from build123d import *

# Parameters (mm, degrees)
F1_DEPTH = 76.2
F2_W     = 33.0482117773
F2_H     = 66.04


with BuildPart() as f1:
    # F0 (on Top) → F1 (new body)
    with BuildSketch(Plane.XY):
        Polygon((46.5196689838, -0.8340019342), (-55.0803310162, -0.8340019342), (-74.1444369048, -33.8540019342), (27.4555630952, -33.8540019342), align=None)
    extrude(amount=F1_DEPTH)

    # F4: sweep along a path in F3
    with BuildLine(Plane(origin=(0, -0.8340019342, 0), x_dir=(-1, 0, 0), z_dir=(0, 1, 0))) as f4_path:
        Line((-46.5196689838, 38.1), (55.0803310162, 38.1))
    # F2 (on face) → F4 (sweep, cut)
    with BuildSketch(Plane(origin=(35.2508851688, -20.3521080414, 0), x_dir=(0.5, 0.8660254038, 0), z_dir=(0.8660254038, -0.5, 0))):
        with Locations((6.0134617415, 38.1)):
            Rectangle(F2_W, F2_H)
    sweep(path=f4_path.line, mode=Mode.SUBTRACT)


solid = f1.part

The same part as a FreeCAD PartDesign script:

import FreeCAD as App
import Part
import Sketcher
from FreeCAD import Vector
Q = App.Units.Quantity


def add_polygon(sketch, points):
    """Adds a closed chain of lines whose ends are joined by coincident constraints."""
    first, n = sketch.GeometryCount, len(points)
    for a, b in zip(points, points[1:] + points[:1]):
        sketch.addGeometry(Part.LineSegment(App.Vector(*a, 0), App.Vector(*b, 0)), False)
    for i in range(n):
        sketch.addConstraint(Sketcher.Constraint("Coincident", first + i, 2, first + (i + 1) % n, 1))

doc = App.newDocument("Part")
body = doc.addObject("PartDesign::Body", "Body")

# Sketch on XY plane
sketch1 = body.newObject("Sketcher::SketchObject", "Sketch")
sketch1.AttachmentSupport = (doc.getObject("XY_Plane"), [""])
sketch1.MapMode = "FlatFace"
add_polygon(sketch1, [(47, -1), (-55, -1), (-74, -34), (27, -34)])  # lines 0-3
sketch1.addConstraint(Sketcher.Constraint("Horizontal", 0))
sketch1.addConstraint(Sketcher.Constraint("Horizontal", 2))
sketch1.addConstraint(Sketcher.Constraint("Parallel", 1, 3))
sketch1.addConstraint(Sketcher.Constraint("DistanceX", 0, 2, 0, 1, Q("4 in")))
sketch1.addConstraint(Sketcher.Constraint("Angle", 1, Q("-120 deg")))
sketch1.addConstraint(Sketcher.Constraint("DistanceY", 1, 2, 0, 2, Q("1.3 in")))
sketch1.addConstraint(Sketcher.Constraint("DistanceY", 0, 2, -1, 1, 0.834002))
sketch1.addConstraint(Sketcher.Constraint("DistanceX", 0, 2, -1, 1, 55.080331))
pad1 = body.newObject("PartDesign::Pad", "Pad")
pad1.Profile = sketch1
pad1.Length = Q("3 in")

# Sketch on an angled plane
sketch2 = body.newObject("Sketcher::SketchObject", "Sketch001")
sketch2.Placement = App.Placement(Vector(35.250885, -20.352108, 0), App.Rotation(Vector(0.5, 0.866025404, 0), Vector(0, 0, 1), Vector(0.866025404, -0.5, 0), "ZXY"))
add_polygon(sketch2, [(-11, 71), (-11, 5), (23, 5), (23, 71)])  # lines 0-3
sketch2.addConstraint(Sketcher.Constraint("Vertical", 0))
sketch2.addConstraint(Sketcher.Constraint("Horizontal", 1))
sketch2.addConstraint(Sketcher.Constraint("Vertical", 2))
sketch2.addConstraint(Sketcher.Constraint("Horizontal", 3))
sketch2.addConstraint(Sketcher.Constraint("DistanceY", 0, 2, 0, 1, Q("2.6 in")))
sketch2.addConstraint(Sketcher.Constraint("DistanceY", -1, 1, 0, 2, Q("0.2 in")))
sketch2.addConstraint(Sketcher.Constraint("DistanceX", 1, 1, 1, 2, 33.048212))
sketch2.addConstraint(Sketcher.Constraint("DistanceX", 0, 2, -1, 1, 10.510644))

# Sketch on XY plane
sketch3 = body.newObject("Sketcher::SketchObject", "Sketch002")
sketch3.AttachmentSupport = (doc.getObject("XY_Plane"), [""])
sketch3.MapMode = "FlatFace"
sketch3.AttachmentOffset = App.Placement(Vector(0, 0, 1.5 * 25.4), App.Rotation())
sketch3.addGeometry(Part.LineSegment(Vector(47, -1, 0), Vector(-55, -1, 0)), False)
sketch3.addConstraint(Sketcher.Constraint("Horizontal", 0))
sketch3.addConstraint(Sketcher.Constraint("DistanceX", 0, 2, 0, 1, Q("4 in")))
sketch3.addConstraint(Sketcher.Constraint("DistanceY", 0, 1, -1, 1, 0.834002))
sketch3.addConstraint(Sketcher.Constraint("DistanceX", -1, 1, 0, 1, 46.519669))
doc.recompute()

subtractivepipe = body.newObject("PartDesign::SubtractivePipe", "SubtractivePipe")
subtractivepipe.Profile = sketch2
subtractivepipe.Spine = (sketch3, ["Edge1"])

doc.recompute()
